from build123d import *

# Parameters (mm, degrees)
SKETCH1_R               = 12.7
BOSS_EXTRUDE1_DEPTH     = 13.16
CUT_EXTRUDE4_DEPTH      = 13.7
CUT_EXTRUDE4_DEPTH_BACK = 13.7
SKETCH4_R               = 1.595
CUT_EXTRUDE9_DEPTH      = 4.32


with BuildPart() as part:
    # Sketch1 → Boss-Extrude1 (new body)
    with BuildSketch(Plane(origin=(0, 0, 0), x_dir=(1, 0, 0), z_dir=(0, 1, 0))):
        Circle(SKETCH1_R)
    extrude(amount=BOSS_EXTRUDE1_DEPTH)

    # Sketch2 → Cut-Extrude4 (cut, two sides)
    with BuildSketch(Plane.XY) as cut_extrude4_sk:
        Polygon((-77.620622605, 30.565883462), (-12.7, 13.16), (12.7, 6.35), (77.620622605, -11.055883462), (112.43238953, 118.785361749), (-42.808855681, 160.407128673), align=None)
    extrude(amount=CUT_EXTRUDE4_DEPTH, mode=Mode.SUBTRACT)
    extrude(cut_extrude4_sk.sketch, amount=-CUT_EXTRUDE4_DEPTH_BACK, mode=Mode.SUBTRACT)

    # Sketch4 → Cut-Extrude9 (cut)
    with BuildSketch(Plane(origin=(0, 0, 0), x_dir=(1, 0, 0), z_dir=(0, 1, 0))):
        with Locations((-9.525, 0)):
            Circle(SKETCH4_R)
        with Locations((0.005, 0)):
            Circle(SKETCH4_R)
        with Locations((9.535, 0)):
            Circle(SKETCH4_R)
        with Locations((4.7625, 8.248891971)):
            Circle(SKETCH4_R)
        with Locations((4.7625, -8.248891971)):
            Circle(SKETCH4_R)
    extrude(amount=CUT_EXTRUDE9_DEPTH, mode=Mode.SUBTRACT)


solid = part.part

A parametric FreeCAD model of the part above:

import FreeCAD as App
import Part
import Sketcher

V = App.Vector
Q = App.Units.Quantity

doc = App.newDocument("Part")
params = doc.addObject("Spreadsheet::Sheet", "Params")
for row, (alias, value) in enumerate([
    ("sketch1_diameter", "25.4 mm"),
    ("pad1_length", "13.16 mm"),
    ("sketch3_diameter", "3.19 mm"),
    ("pocket2_length", "4.32 mm"),
], start=1):
    params.set(f"A{row}", alias)
    params.set(f"B{row}", "=" + value)
    params.setAlias(f"B{row}", alias)

body = doc.addObject("PartDesign::Body", "Body")

sketch1 = body.newObject("Sketcher::SketchObject", "Sketch")
sketch1.AttachmentSupport = (doc.getObject("XZ_Plane"), [""])
sketch1.MapMode = "FlatFace"
sketch1.addGeometry(Part.Circle(V(0, 0, 0), V(0, 0, 1), 13), False)
sketch1.addConstraint(Sketcher.Constraint("Coincident", 0, 3, -1, 1))
sketch1.addConstraint(Sketcher.Constraint("Diameter", 0, Q("25.4 mm")))
sketch1.setExpression("Constraints[1]", "Params.sketch1_diameter")
pad1 = body.newObject("PartDesign::Pad", "Pad")
pad1.Profile = sketch1
pad1.setExpression("Length", "Params.pad1_length")
pad1.Reversed = True

sketch2 = body.newObject("Sketcher::SketchObject", "Sketch001")
sketch2.AttachmentSupport = (doc.getObject("XY_Plane"), [""])
sketch2.MapMode = "FlatFace"
sketch2.addGeometry(Part.LineSegment(V(-78, 31, 0), V(-13, 13, 0)), False)
sketch2.addGeometry(Part.LineSegment(V(-13, 13, 0), V(13, 6, 0)), False)
sketch2.addGeometry(Part.LineSegment(V(13, 6, 0), V(78, -11, 0)), False)
sketch2.addGeometry(Part.LineSegment(V(78, -11, 0), V(112, 119, 0)), False)
sketch2.addGeometry(Part.LineSegment(V(112, 119, 0), V(-43, 160, 0)), False)
sketch2.addGeometry(Part.LineSegment(V(-43, 160, 0), V(-78, 31, 0)), False)
sketch2.addConstraint(Sketcher.Constraint("Coincident", 0, 2, 1, 1))
sketch2.addConstraint(Sketcher.Constraint("Coincident", 1, 2, 2, 1))
sketch2.addConstraint(Sketcher.Constraint("Coincident", 2, 2, 3, 1))
sketch2.addConstraint(Sketcher.Constraint("Coincident", 3, 2, 4, 1))
sketch2.addConstraint(Sketcher.Constraint("Coincident", 4, 2, 5, 1))
sketch2.addConstraint(Sketcher.Constraint("Coincident", 5, 2, 0, 1))
sketch2.addConstraint(Sketcher.Constraint("Parallel", 0, 1))
sketch2.addConstraint(Sketcher.Constraint("Parallel", 1, 2))
sketch2.addConstraint(Sketcher.Constraint("Perpendicular", 2, 3))
sketch2.addConstraint(Sketcher.Constraint("Perpendicular", 3, 4))
sketch2.addConstraint(Sketcher.Constraint("Perpendicular", 4, 5))
sketch2.addConstraint(Sketcher.Constraint("Equal", 0, 2))
sketch2.addConstraint(Sketcher.Constraint("DistanceX", 0, 2, -1, 1, Q("12.7 mm")))
sketch2.addConstraint(Sketcher.Constraint("DistanceX", -1, 1, 1, 2, Q("12.7 mm")))
sketch2.addConstraint(Sketcher.Constraint("DistanceY", -1, 1, 0, 2, Q("13.16 mm")))
sketch2.addConstraint(Sketcher.Constraint("DistanceY", -1, 1, 1, 2, Q("6.35 mm")))
sketch2.addConstraint(Sketcher.Constraint("Distance", 0, Q("67.213481 mm")))
sketch2.addConstraint(Sketcher.Constraint("Distance", 3, Q("134.426962 mm")))
pocket1 = body.newObject("PartDesign::Pocket", "Pocket")
pocket1.Profile = sketch2
pocket1.Type = "ThroughAll"
pocket1.Midplane = True

sketch3 = body.newObject("Sketcher::SketchObject", "Sketch002")
sketch3.AttachmentSupport = (doc.getObject("XZ_Plane"), [""])
sketch3.MapMode = "FlatFace"
sketch3.addGeometry(Part.Circle(V(-9.5, 0, 0), V(0, 0, 1), 1.6), False)
sketch3.addGeometry(Part.Circle(V(0, 0, 0), V(0, 0, 1), 1.6), False)
sketch3.addGeometry(Part.Circle(V(9.5, 0, 0), V(0, 0, 1), 1.6), False)
sketch3.addGeometry(Part.Circle(V(4.8, -8.2, 0), V(0, 0, 1), 1.6), False)
sketch3.addGeometry(Part.Circle(V(4.8, 8.2, 0), V(0, 0, 1), 1.6), False)
sketch3.addConstraint(Sketcher.Constraint("Equal", 0, 1))
sketch3.addConstraint(Sketcher.Constraint("Equal", 1, 2))
sketch3.addConstraint(Sketcher.Constraint("Equal", 2, 3))
sketch3.addConstraint(Sketcher.Constraint("Equal", 3, 4))
sketch3.addConstraint(Sketcher.Constraint("Symmetric", 3, 3, 4, 3, -1))
sketch3.addConstraint(Sketcher.Constraint("PointOnObject", 0, 3, -1))
sketch3.addConstraint(Sketcher.Constraint("PointOnObject", 1, 3, -1))
sketch3.addConstraint(Sketcher.Constraint("PointOnObject", 2, 3, -1))
sketch3.addConstraint(Sketcher.Constraint("Diameter", 0, Q("3.19 mm")))
sketch3.addConstraint(Sketcher.Constraint("DistanceX", 0, 3, 1, 3, Q("9.53 mm")))
sketch3.addConstraint(Sketcher.Constraint("DistanceX", 1, 3, 2, 3, Q("9.53 mm")))
sketch3.addConstraint(Sketcher.Constraint("DistanceX", 0, 3, -1, 1, Q("9.525 mm")))
sketch3.addConstraint(Sketcher.Constraint("DistanceX", -1, 1, 3, 3, Q("4.7625 mm")))
sketch3.addConstraint(Sketcher.Constraint("DistanceY", 3, 3, -1, 1, Q("8.248892 mm")))
sketch3.setExpression("Constraints[8]", "Params.sketch3_diameter")
pocket2 = body.newObject("PartDesign::Pocket", "Pocket001")
pocket2.Profile = sketch3
pocket2.setExpression("Length", "Params.pocket2_length")

doc.recompute()
